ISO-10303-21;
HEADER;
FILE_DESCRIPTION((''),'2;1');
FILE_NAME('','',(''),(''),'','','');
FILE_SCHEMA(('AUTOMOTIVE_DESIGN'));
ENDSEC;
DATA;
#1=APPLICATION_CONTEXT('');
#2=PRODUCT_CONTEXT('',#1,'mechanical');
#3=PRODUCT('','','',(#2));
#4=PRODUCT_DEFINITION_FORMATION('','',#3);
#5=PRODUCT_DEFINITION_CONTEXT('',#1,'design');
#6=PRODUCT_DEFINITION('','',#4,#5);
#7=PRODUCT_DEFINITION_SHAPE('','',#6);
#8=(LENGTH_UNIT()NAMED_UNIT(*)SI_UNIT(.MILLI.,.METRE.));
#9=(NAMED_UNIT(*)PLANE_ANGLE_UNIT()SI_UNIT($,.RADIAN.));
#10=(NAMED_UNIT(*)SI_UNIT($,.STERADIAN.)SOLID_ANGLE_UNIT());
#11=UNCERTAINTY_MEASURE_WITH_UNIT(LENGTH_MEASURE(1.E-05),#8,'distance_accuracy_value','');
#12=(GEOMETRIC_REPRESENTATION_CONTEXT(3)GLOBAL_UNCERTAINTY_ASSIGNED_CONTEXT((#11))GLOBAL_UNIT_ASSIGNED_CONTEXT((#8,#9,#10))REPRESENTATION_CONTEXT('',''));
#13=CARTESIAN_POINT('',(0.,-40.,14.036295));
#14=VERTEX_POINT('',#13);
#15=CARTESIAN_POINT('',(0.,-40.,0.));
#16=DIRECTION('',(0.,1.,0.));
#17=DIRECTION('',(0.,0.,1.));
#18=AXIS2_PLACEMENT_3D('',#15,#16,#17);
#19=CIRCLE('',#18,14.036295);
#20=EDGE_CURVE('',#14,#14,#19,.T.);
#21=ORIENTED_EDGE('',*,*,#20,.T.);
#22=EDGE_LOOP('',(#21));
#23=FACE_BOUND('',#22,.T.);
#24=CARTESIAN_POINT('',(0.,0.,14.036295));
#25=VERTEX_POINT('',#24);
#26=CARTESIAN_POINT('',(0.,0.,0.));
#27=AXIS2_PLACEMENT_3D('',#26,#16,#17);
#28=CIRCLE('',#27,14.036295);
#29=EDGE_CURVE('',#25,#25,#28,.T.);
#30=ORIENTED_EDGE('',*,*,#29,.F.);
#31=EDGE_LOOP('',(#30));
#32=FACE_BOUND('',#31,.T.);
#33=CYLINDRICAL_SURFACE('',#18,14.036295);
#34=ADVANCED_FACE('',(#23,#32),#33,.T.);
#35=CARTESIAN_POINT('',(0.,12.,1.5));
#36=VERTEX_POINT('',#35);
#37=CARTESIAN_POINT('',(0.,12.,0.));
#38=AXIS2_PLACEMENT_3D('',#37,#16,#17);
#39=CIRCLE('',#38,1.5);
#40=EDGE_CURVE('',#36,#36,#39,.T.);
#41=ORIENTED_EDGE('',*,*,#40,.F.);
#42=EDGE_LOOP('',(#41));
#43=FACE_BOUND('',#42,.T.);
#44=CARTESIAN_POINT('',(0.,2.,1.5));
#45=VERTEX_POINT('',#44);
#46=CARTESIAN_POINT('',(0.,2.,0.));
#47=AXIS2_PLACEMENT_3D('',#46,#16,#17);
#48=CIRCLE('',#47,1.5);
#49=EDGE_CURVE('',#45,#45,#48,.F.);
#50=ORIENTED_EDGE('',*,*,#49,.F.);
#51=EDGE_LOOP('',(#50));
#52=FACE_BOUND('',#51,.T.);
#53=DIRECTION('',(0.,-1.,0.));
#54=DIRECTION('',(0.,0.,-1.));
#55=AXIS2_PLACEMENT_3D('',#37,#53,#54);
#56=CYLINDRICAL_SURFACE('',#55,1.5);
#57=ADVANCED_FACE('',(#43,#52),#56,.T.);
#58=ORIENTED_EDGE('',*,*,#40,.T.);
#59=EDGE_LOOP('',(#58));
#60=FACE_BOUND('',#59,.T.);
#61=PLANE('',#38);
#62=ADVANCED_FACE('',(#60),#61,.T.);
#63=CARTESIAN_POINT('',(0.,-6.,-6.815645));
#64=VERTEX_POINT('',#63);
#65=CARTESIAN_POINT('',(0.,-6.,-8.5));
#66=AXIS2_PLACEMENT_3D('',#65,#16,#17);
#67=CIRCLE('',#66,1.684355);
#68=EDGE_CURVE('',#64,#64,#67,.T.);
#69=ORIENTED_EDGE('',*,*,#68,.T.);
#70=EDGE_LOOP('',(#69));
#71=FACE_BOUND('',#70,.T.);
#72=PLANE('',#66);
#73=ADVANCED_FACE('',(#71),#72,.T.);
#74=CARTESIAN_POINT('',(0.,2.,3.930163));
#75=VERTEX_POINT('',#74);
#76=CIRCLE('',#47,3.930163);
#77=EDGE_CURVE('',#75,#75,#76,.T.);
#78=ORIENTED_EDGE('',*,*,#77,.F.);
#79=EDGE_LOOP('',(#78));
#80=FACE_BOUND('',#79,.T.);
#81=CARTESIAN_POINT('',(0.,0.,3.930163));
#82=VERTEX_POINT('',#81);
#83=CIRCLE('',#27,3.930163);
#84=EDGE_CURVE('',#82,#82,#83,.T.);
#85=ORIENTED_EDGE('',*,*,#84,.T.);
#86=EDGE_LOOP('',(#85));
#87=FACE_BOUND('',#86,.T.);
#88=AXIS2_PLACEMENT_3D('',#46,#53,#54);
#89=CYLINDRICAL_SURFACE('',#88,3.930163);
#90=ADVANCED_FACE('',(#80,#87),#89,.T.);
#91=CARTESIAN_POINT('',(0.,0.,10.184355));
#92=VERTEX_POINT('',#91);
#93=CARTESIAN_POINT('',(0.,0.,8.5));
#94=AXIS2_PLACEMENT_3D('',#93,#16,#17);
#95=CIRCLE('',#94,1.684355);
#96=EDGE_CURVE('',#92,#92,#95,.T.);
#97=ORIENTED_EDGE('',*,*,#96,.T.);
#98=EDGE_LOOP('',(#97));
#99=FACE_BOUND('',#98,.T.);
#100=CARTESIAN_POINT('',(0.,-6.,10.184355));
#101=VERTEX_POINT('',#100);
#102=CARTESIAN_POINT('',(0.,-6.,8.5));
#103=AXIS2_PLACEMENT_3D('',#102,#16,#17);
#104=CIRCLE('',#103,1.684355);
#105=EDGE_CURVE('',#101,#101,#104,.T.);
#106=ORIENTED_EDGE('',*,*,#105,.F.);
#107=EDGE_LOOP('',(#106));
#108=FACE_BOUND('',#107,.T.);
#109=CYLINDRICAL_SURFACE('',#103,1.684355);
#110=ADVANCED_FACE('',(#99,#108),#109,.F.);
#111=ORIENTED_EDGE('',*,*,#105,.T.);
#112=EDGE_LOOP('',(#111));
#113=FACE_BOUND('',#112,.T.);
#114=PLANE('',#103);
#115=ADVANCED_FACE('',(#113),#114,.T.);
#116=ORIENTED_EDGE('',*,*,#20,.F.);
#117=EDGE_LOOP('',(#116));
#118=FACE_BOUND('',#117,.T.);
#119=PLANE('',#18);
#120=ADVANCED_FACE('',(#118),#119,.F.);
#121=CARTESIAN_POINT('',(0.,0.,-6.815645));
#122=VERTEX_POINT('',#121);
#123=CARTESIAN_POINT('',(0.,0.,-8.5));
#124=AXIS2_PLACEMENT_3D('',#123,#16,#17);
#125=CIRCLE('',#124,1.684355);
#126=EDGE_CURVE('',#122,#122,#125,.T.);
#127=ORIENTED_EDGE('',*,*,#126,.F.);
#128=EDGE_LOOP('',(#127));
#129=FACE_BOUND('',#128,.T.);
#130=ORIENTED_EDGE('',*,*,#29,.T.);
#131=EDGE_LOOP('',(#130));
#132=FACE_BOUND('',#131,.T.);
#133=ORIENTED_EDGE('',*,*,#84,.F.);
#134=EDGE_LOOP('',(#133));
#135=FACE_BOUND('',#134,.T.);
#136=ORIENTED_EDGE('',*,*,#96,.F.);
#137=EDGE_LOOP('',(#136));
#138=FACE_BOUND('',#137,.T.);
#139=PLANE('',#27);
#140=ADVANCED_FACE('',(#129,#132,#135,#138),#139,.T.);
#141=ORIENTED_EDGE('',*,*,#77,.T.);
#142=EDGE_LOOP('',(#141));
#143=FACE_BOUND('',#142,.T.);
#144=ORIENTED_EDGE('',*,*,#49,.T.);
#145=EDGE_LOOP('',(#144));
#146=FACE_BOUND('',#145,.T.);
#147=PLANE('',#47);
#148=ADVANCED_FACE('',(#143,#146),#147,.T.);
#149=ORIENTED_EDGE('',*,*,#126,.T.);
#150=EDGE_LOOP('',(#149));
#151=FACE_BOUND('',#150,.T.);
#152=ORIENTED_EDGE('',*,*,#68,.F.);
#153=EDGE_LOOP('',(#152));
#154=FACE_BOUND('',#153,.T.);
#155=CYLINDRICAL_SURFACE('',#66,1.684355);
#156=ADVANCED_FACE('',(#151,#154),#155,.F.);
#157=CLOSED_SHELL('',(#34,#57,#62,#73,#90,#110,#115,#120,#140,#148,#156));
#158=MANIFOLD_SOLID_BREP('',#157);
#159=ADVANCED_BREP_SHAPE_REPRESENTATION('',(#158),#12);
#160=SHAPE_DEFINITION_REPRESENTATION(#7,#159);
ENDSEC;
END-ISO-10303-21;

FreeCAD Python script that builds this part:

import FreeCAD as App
import Part
import Sketcher
Q = App.Units.Quantity

doc = App.newDocument("Part")
body = doc.addObject("PartDesign::Body", "Body")

# Sketch on XZ plane
sketch1 = body.newObject("Sketcher::SketchObject", "Sketch")
sketch1.AttachmentSupport = (doc.getObject("XZ_Plane"), [""])
sketch1.MapMode = "FlatFace"
sketch1.addGeometry(Part.Circle(App.Vector(0, 0, 0), App.Vector(0, 0, 1), 14), False)
sketch1.addConstraint(Sketcher.Constraint("Coincident", 0, 3, -1, 1))
sketch1.addConstraint(Sketcher.Constraint("Diameter", 0, Q("28.072591 mm")))
pad1 = body.newObject("PartDesign::Pad", "Pad")
pad1.Profile = sketch1
pad1.Length = 40

# Sketch on XZ plane
sketch2 = body.newObject("Sketcher::SketchObject", "Sketch001")
sketch2.AttachmentSupport = (doc.getObject("XZ_Plane"), [""])
sketch2.MapMode = "FlatFace"
sketch2.addGeometry(Part.Circle(App.Vector(0, 0, 0), App.Vector(0, 0, 1), 3.9), False)
sketch2.addConstraint(Sketcher.Constraint("Coincident", 0, 3, -1, 1))
sketch2.addConstraint(Sketcher.Constraint("Diameter", 0, Q("7.860325 mm")))
pad2 = body.newObject("PartDesign::Pad", "Pad001")
pad2.Profile = sketch2
pad2.Length = 2
pad2.Reversed = True

# Sketch on XZ plane
sketch3 = body.newObject("Sketcher::SketchObject", "Sketch002")
sketch3.AttachmentSupport = (doc.getObject("XZ_Plane"), [""])
sketch3.MapMode = "FlatFace"
sketch3.addGeometry(Part.Circle(App.Vector(0, 0, 0), App.Vector(0, 0, 1), 1.5), False)
sketch3.addConstraint(Sketcher.Constraint("Coincident", 0, 3, -1, 1))
sketch3.addConstraint(Sketcher.Constraint("Diameter", 0, Q("3 mm")))
pad3 = body.newObject("PartDesign::Pad", "Pad002")
pad3.Profile = sketch3
pad3.Length = 12
pad3.Reversed = True

# Sketch on XZ plane
sketch4 = body.newObject("Sketcher::SketchObject", "Sketch003")
sketch4.AttachmentSupport = (doc.getObject("XZ_Plane"), [""])
sketch4.MapMode = "FlatFace"
sketch4.addGeometry(Part.Circle(App.Vector(0, -8.5, 0), App.Vector(0, 0, 1), 1.7), False)
sketch4.addGeometry(Part.Circle(App.Vector(0, 8.5, 0), App.Vector(0, 0, 1), 1.7), False)
sketch4.addConstraint(Sketcher.Constraint("Equal", 0, 1))
sketch4.addConstraint(Sketcher.Constraint("Symmetric", 0, 3, 1, 3, -1, 1))
sketch4.addConstraint(Sketcher.Constraint("PointOnObject", 0, 3, -2))
sketch4.addConstraint(Sketcher.Constraint("DistanceY", 0, 3, 1, 3, Q("17 mm")))
sketch4.addConstraint(Sketcher.Constraint("Diameter", 0, Q("3.368711 mm")))
pocket1 = body.newObject("PartDesign::Pocket", "Pocket")
pocket1.Profile = sketch4
pocket1.Length = 6
pocket1.Reversed = True

doc.recompute()
